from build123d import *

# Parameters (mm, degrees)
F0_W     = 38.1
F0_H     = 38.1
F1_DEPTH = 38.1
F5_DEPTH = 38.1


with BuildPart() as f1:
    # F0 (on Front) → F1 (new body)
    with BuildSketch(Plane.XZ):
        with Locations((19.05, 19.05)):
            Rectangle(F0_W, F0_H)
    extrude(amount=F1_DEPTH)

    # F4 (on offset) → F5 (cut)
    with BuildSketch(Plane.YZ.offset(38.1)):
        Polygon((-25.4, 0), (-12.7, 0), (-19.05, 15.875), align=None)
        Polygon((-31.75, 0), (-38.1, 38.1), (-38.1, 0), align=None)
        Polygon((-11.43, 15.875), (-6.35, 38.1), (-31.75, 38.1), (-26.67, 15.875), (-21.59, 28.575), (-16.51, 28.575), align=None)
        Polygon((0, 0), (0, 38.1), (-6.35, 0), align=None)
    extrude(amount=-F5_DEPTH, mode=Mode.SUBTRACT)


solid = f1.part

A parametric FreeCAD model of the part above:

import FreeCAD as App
import Part
import Sketcher
from FreeCAD import Vector
Q = App.Units.Quantity

doc = App.newDocument("Part")
body = doc.addObject("PartDesign::Body", "Body")

# Sketch on XZ plane
sketch1 = body.newObject("Sketcher::SketchObject", "Sketch")
sketch1.AttachmentSupport = (doc.getObject("XZ_Plane"), [""])
sketch1.MapMode = "FlatFace"
sketch1.addGeometry([
    Part.LineSegment(Vector(0, 38, 0), Vector(0, 0, 0)),
    Part.LineSegment(Vector(0, 0, 0), Vector(38, 0, 0)),
    Part.LineSegment(Vector(38, 0, 0), Vector(38, 38, 0)),
    Part.LineSegment(Vector(38, 38, 0), Vector(0, 38, 0)),
], False)
sketch1.addConstraint([
    Sketcher.Constraint("Coincident", 0, 2, 1, 1),
    Sketcher.Constraint("Coincident", 1, 2, 2, 1),
    Sketcher.Constraint("Coincident", 2, 2, 3, 1),
    Sketcher.Constraint("Coincident", 3, 2, 0, 1),
    Sketcher.Constraint("Vertical", 0),
    Sketcher.Constraint("Horizontal", 1),
    Sketcher.Constraint("Vertical", 2),
    Sketcher.Constraint("Horizontal", 3),
    Sketcher.Constraint("Coincident", 0, 2, -1, 1),
    Sketcher.Constraint("Equal", 3, 0),
    Sketcher.Constraint("DistanceX", 1, 1, 1, 2, Q("1.5 in")),
])
pad1 = body.newObject("PartDesign::Pad", "Pad")
pad1.Profile = sketch1
pad1.Length = Q("1.5 in")

# Sketch on YZ plane
sketch2 = body.newObject("Sketcher::SketchObject", "Sketch001")
sketch2.AttachmentSupport = (doc.getObject("YZ_Plane"), [""])
sketch2.MapMode = "FlatFace"
sketch2.AttachmentOffset = App.Placement(Vector(0, 0, 1.5 * 25.4), App.Rotation())
sketch2.addGeometry([
    Part.LineSegment(Vector(-25, 0, 0), Vector(-13, 0, 0)),  # 0
    Part.LineSegment(Vector(-13, 0, 0), Vector(-19, 16, 0)),  # 1
    Part.LineSegment(Vector(-19, 16, 0), Vector(-25, 0, 0)),  # 2
    Part.LineSegment(Vector(-32, 0, 0), Vector(-38, 38, 0)),  # 3
    Part.LineSegment(Vector(-38, 38, 0), Vector(-38, 0, 0)),  # 4
    Part.LineSegment(Vector(-38, 0, 0), Vector(-32, 0, 0)),  # 5
    Part.LineSegment(Vector(-11, 16, 0), Vector(-6, 38, 0)),  # 6
    Part.LineSegment(Vector(-6, 38, 0), Vector(-32, 38, 0)),  # 7
    Part.LineSegment(Vector(-32, 38, 0), Vector(-27, 16, 0)),  # 8
    Part.LineSegment(Vector(-27, 16, 0), Vector(-22, 29, 0)),  # 9
    Part.LineSegment(Vector(-22, 29, 0), Vector(-17, 29, 0)),  # 10
    Part.LineSegment(Vector(-17, 29, 0), Vector(-11, 16, 0)),  # 11
    Part.LineSegment(Vector(0, 0, 0), Vector(0, 38, 0)),  # 12
    Part.LineSegment(Vector(0, 38, 0), Vector(-6, 0, 0)),  # 13
    Part.LineSegment(Vector(-6, 0, 0), Vector(0, 0, 0)),  # 14
], False)
sketch2.addConstraint([
    Sketcher.Constraint("Coincident", 0, 2, 1, 1),
    Sketcher.Constraint("Coincident", 1, 2, 2, 1),
    Sketcher.Constraint("Coincident", 2, 2, 0, 1),
    Sketcher.Constraint("Coincident", 3, 2, 4, 1),
    Sketcher.Constraint("Coincident", 4, 2, 5, 1),
    Sketcher.Constraint("Coincident", 5, 2, 3, 1),
    Sketcher.Constraint("Coincident", 6, 2, 7, 1),
    Sketcher.Constraint("Coincident", 7, 2, 8, 1),
    Sketcher.Constraint("Coincident", 8, 2, 9, 1),
    Sketcher.Constraint("Coincident", 9, 2, 10, 1),
    Sketcher.Constraint("Coincident", 10, 2, 11, 1),
    Sketcher.Constraint("Coincident", 11, 2, 6, 1),
    Sketcher.Constraint("Coincident", 12, 2, 13, 1),
    Sketcher.Constraint("Coincident", 13, 2, 14, 1),
    Sketcher.Constraint("Coincident", 14, 2, 12, 1),
    Sketcher.Constraint("Horizontal", 0),
    Sketcher.Constraint("Vertical", 4),
    Sketcher.Constraint("Horizontal", 5),
    Sketcher.Constraint("Horizontal", 7),
    Sketcher.Constraint("Horizontal", 10),
    Sketcher.Constraint("Vertical", 12),
    Sketcher.Constraint("Horizontal", 14),
    Sketcher.Constraint("Coincident", 14, 2, -1, 1),
    Sketcher.Constraint("PointOnObject", 0, 2, -1),
    Sketcher.Constraint("PointOnObject", 4, 2, -1),
    Sketcher.Constraint("Parallel", 2, 9),
    Sketcher.Constraint("Parallel", 1, 11),
    Sketcher.Constraint("Horizontal", 3, 2, 6, 2),
    Sketcher.Constraint("Horizontal", 1, 2, 8, 2),
    Sketcher.Constraint("Horizontal", 8, 2, 11, 2),
    Sketcher.Constraint("Horizontal", 7, 2, 12, 2),
    Sketcher.Constraint("Vertical", 5, 2, 7, 2),
    Sketcher.Constraint("Vertical", 6, 2, 13, 2),
    Sketcher.Constraint("Equal", 5, 14),
    Sketcher.Constraint("Equal", 1, 2),
    Sketcher.Constraint("Equal", 6, 8),
    Sketcher.Constraint("DistanceX", 7, 2, 7, 1, Q("1 in")),
    Sketcher.Constraint("DistanceX", 0, 1, 0, 2, Q("0.5 in")),
    Sketcher.Constraint("DistanceX", 10, 1, 10, 2, Q("0.2 in")),
    Sketcher.Constraint("DistanceY", 4, 2, 4, 1, Q("1.5 in")),
    Sketcher.Constraint("DistanceX", 2, 2, -1, 1, Q("1 in")),
    Sketcher.Constraint("DistanceX", 3, 2, 0, 2, Q("1 in")),
    Sketcher.Constraint("DistanceX", 8, 2, 1, 2, Q("0.3 in")),
    Sketcher.Constraint("DistanceY", 1, 2, 9, 2, Q("0.5 in")),
])
pocket1 = body.newObject("PartDesign::Pocket", "Pocket")
pocket1.Profile = sketch2
pocket1.Length = Q("1.5 in")

doc.recompute()
